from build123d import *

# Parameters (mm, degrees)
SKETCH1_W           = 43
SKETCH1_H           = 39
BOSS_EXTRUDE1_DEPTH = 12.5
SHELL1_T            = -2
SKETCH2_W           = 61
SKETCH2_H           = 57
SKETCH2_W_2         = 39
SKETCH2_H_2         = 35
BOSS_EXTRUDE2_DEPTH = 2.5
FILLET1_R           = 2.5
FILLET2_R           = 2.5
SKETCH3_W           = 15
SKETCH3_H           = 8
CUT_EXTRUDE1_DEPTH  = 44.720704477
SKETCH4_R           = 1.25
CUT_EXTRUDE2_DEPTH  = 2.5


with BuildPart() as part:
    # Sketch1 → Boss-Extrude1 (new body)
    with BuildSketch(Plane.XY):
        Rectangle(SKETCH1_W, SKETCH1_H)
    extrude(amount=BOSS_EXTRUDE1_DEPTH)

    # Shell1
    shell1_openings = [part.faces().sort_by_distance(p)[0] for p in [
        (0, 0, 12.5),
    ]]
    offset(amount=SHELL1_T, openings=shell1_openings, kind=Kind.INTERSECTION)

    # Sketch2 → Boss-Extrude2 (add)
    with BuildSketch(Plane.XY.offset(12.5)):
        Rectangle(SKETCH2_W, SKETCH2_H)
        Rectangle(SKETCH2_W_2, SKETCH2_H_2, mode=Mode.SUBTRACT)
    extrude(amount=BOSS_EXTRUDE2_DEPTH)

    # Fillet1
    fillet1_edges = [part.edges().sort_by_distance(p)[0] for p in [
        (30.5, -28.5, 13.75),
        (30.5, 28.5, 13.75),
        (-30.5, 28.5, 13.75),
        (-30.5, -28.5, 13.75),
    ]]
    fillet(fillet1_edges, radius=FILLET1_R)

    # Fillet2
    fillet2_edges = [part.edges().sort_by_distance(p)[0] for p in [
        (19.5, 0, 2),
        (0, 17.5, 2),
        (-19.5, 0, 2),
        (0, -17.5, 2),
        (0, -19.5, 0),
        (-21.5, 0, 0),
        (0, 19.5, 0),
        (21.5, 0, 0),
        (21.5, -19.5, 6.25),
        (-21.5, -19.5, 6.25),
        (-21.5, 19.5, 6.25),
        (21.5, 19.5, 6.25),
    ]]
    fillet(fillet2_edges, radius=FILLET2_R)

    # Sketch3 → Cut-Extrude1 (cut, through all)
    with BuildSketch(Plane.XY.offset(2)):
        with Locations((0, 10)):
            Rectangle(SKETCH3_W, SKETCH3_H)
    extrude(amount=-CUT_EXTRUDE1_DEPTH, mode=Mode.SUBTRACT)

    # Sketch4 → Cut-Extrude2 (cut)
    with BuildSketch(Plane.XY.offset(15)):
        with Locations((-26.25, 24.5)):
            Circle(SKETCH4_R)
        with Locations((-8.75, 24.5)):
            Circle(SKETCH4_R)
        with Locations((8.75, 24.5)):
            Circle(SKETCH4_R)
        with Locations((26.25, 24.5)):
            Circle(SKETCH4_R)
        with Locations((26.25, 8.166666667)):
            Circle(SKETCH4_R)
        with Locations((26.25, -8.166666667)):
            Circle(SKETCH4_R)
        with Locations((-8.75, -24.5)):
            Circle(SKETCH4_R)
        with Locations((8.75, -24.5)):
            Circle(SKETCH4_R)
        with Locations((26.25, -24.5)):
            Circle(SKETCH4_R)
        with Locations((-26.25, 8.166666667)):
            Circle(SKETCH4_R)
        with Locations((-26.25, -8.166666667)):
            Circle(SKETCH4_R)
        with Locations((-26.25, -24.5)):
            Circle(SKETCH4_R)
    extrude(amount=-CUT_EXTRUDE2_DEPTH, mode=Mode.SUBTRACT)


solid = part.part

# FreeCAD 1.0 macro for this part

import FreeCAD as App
import Part
import Sketcher

V = App.Vector


def edges_at(feature, points):
    """Names of the edges that pass closest to the given points."""
    edges = feature.Shape.Edges
    near = lambda p: min(range(len(edges)), key=lambda i: edges[i].distToShape(Part.Vertex(*p))[0])
    return sorted({f"Edge{near(p) + 1}" for p in points})


def faces_at(feature, points):
    """Names of the faces that lie closest to the given points."""
    faces = feature.Shape.Faces
    near = lambda p: min(range(len(faces)), key=lambda i: faces[i].distToShape(Part.Vertex(*p))[0])
    return sorted({f"Face{near(p) + 1}" for p in points})

doc = App.newDocument("Part")
body = doc.addObject("PartDesign::Body", "Body")

# Sketch on XY plane
sketch1 = body.newObject("Sketcher::SketchObject", "Sketch")
sketch1.AttachmentSupport = (doc.getObject("XY_Plane"), [""])
sketch1.MapMode = "FlatFace"
sketch1.addGeometry([
    Part.LineSegment(V(-22, 20, 0), V(-22, -20, 0)),
    Part.LineSegment(V(-22, -20, 0), V(22, -20, 0)),
    Part.LineSegment(V(22, -20, 0), V(22, 20, 0)),
    Part.LineSegment(V(22, 20, 0), V(-22, 20, 0)),
], False)
sketch1.addConstraint([
    Sketcher.Constraint("Coincident", 0, 2, 1, 1),
    Sketcher.Constraint("Coincident", 1, 2, 2, 1),
    Sketcher.Constraint("Coincident", 2, 2, 3, 1),
    Sketcher.Constraint("Coincident", 3, 2, 0, 1),
    Sketcher.Constraint("Vertical", 0),
    Sketcher.Constraint("Horizontal", 1),
    Sketcher.Constraint("Vertical", 2),
    Sketcher.Constraint("Horizontal", 3),
    Sketcher.Constraint("Symmetric", 0, 2, 2, 2, -1, 1),
    Sketcher.Constraint("DistanceX", 1, 1, 1, 2, 43.0),
    Sketcher.Constraint("DistanceY", 0, 2, 0, 1, 39.0),
])
pad1 = body.newObject("PartDesign::Pad", "Pad")
pad1.Profile = sketch1
pad1.Length = 12.5
doc.recompute()

thickness = body.newObject("PartDesign::Thickness", "Thickness")
thickness.Base = (pad1, faces_at(pad1, [(0, 0, 12.5)]))
thickness.Value = 2
thickness.Reversed = True
thickness.Join = "Intersection"

# Sketch on XY plane
sketch2 = body.newObject("Sketcher::SketchObject", "Sketch001")
sketch2.AttachmentSupport = (doc.getObject("XY_Plane"), [""])
sketch2.MapMode = "FlatFace"
sketch2.AttachmentOffset = App.Placement(V(0, 0, 12.5), App.Rotation())
sketch2.addGeometry([
    Part.LineSegment(V(-30, 28, 0), V(-30, -28, 0)),  # 0
    Part.LineSegment(V(-30, -28, 0), V(30, -28, 0)),  # 1
    Part.LineSegment(V(30, -28, 0), V(30, 28, 0)),  # 2
    Part.LineSegment(V(30, 28, 0), V(-30, 28, 0)),  # 3
    Part.LineSegment(V(20, -18, 0), V(-20, -18, 0)),  # 4
    Part.LineSegment(V(-20, -18, 0), V(-20, 18, 0)),  # 5
    Part.LineSegment(V(-20, 18, 0), V(20, 18, 0)),  # 6
    Part.LineSegment(V(20, 18, 0), V(20, -18, 0)),  # 7
], False)
sketch2.addConstraint([
    Sketcher.Constraint("Coincident", 0, 2, 1, 1),
    Sketcher.Constraint("Coincident", 1, 2, 2, 1),
    Sketcher.Constraint("Coincident", 2, 2, 3, 1),
    Sketcher.Constraint("Coincident", 3, 2, 0, 1),
    Sketcher.Constraint("Coincident", 4, 2, 5, 1),
    Sketcher.Constraint("Coincident", 5, 2, 6, 1),
    Sketcher.Constraint("Coincident", 6, 2, 7, 1),
    Sketcher.Constraint("Coincident", 7, 2, 4, 1),
    Sketcher.Constraint("Vertical", 0),
    Sketcher.Constraint("Horizontal", 1),
    Sketcher.Constraint("Vertical", 2),
    Sketcher.Constraint("Horizontal", 3),
    Sketcher.Constraint("Horizontal", 4),
    Sketcher.Constraint("Vertical", 5),
    Sketcher.Constraint("Horizontal", 6),
    Sketcher.Constraint("Vertical", 7),
    Sketcher.Constraint("Symmetric", 0, 2, 2, 2, -1, 1),
    Sketcher.Constraint("Symmetric", 4, 2, 6, 2, -1, 1),
    Sketcher.Constraint("DistanceX", 1, 1, 1, 2, 61.0),
    Sketcher.Constraint("DistanceX", 4, 2, 4, 1, 39.0),
    Sketcher.Constraint("DistanceY", 0, 2, 0, 1, 57.0),
    Sketcher.Constraint("DistanceY", 5, 1, 5, 2, 35.0),
])
pad2 = body.newObject("PartDesign::Pad", "Pad001")
pad2.Profile = sketch2
pad2.Length = 2.5
doc.recompute()

fillet = body.newObject("PartDesign::Fillet", "Fillet")
fillet.Base = (pad2, edges_at(pad2, [
    (30.5, -28.5, 13.75),
    (30.5, 28.5, 13.75),
    (-30.5, 28.5, 13.75),
    (-30.5, -28.5, 13.75),
]))
fillet.Radius = 2.5
doc.recompute()

fillet2 = body.newObject("PartDesign::Fillet", "Fillet001")
fillet2.Base = (fillet, edges_at(fillet, [
    (19.5, 0, 2),
    (0, 17.5, 2),
    (-19.5, 0, 2),
    (0, -17.5, 2),
    (0, -19.5, 0),
    (-21.5, 0, 0),
    (0, 19.5, 0),
    (21.5, 0, 0),
    (21.5, -19.5, 6.25),
    (-21.5, -19.5, 6.25),
    (-21.5, 19.5, 6.25),
    (21.5, 19.5, 6.25),
]))
fillet2.Radius = 2.5

# Sketch on XY plane
sketch3 = body.newObject("Sketcher::SketchObject", "Sketch002")
sketch3.AttachmentSupport = (doc.getObject("XY_Plane"), [""])
sketch3.MapMode = "FlatFace"
sketch3.AttachmentOffset = App.Placement(V(0, 0, 2), App.Rotation())
sketch3.addGeometry([
    Part.LineSegment(V(-8, 14, 0), V(-8, 6, 0)),
    Part.LineSegment(V(-8, 6, 0), V(8, 6, 0)),
    Part.LineSegment(V(8, 6, 0), V(8, 14, 0)),
    Part.LineSegment(V(8, 14, 0), V(-8, 14, 0)),
], False)
sketch3.addConstraint([
    Sketcher.Constraint("Coincident", 0, 2, 1, 1),
    Sketcher.Constraint("Coincident", 1, 2, 2, 1),
    Sketcher.Constraint("Coincident", 2, 2, 3, 1),
    Sketcher.Constraint("Coincident", 3, 2, 0, 1),
    Sketcher.Constraint("Vertical", 0),
    Sketcher.Constraint("Horizontal", 1),
    Sketcher.Constraint("Vertical", 2),
    Sketcher.Constraint("Horizontal", 3),
    Sketcher.Constraint("DistanceX", 1, 1, 1, 2, 15.0),
    Sketcher.Constraint("DistanceY", 0, 2, 0, 1, 8.0),
    Sketcher.Constraint("DistanceY", -1, 1, 0, 2, 6.0),
    Sketcher.Constraint("DistanceX", 0, 2, -1, 1, 7.5),
])
pocket1 = body.newObject("PartDesign::Pocket", "Pocket")
pocket1.Profile = sketch3
pocket1.Type = "ThroughAll"

# Sketch on XY plane
sketch4 = body.newObject("Sketcher::SketchObject", "Sketch003")
sketch4.AttachmentSupport = (doc.getObject("XY_Plane"), [""])
sketch4.MapMode = "FlatFace"
sketch4.AttachmentOffset = App.Placement(V(0, 0, 15), App.Rotation())
sketch4.addGeometry([
    Part.Circle(V(-26.2, 24.5, 0), V(0, 0, 1), 1.2),  # 0
    Part.Circle(V(-8.8, 24.5, 0), V(0, 0, 1), 1.2),  # 1
    Part.Circle(V(8.8, 24.5, 0), V(0, 0, 1), 1.2),  # 2
    Part.Circle(V(26.2, 24.5, 0), V(0, 0, 1), 1.2),  # 3
    Part.Circle(V(26.2, 8.2, 0), V(0, 0, 1), 1.2),  # 4
    Part.Circle(V(26.2, -8.2, 0), V(0, 0, 1), 1.2),  # 5
    Part.Circle(V(-8.8, -24.5, 0), V(0, 0, 1), 1.2),  # 6
    Part.Circle(V(8.8, -24.5, 0), V(0, 0, 1), 1.2),  # 7
    Part.Circle(V(26.2, -24.5, 0), V(0, 0, 1), 1.2),  # 8
    Part.Circle(V(-26.2, 8.2, 0), V(0, 0, 1), 1.2),  # 9
    Part.Circle(V(-26.2, -8.2, 0), V(0, 0, 1), 1.2),  # 10
    Part.Circle(V(-26.2, -24.5, 0), V(0, 0, 1), 1.2),  # 11
], False)
sketch4.addConstraint([
    Sketcher.Constraint("Equal", 0, 1),
    Sketcher.Constraint("Equal", 1, 2),
    Sketcher.Constraint("Equal", 2, 3),
    Sketcher.Constraint("Equal", 3, 4),
    Sketcher.Constraint("Equal", 4, 5),
    Sketcher.Constraint("Equal", 5, 6),
    Sketcher.Constraint("Equal", 6, 7),
    Sketcher.Constraint("Equal", 7, 8),
    Sketcher.Constraint("Equal", 8, 9),
    Sketcher.Constraint("Equal", 9, 10),
    Sketcher.Constraint("Equal", 10, 11),
    Sketcher.Constraint("Symmetric", 2, 3, 6, 3, -1, 1),
    Sketcher.Constraint("Symmetric", 1, 3, 7, 3, -1, 1),
    Sketcher.Constraint("Symmetric", 0, 3, 8, 3, -1, 1),
    Sketcher.Constraint("Symmetric", 5, 3, 9, 3, -1, 1),
    Sketcher.Constraint("Symmetric", 4, 3, 10, 3, -1, 1),
    Sketcher.Constraint("Symmetric", 3, 3, 11, 3, -1, 1),
    Sketcher.Constraint("Symmetric", 1, 3, 2, 3, -2),
    Sketcher.Constraint("Symmetric", 0, 3, 3, 3, -2),
    Sketcher.Constraint("Symmetric", 4, 3, 9, 3, -2),
    Sketcher.Constraint("Horizontal", 0, 3, 1, 3),
    Sketcher.Constraint("Vertical", 3, 3, 4, 3),
    Sketcher.Constraint("Diameter", 0, 2.5),
    Sketcher.Constraint("DistanceX", 0, 3, 2, 3, 35.0),
    Sketcher.Constraint("DistanceY", 6, 3, 1, 3, 49.0),
    Sketcher.Constraint("DistanceX", 0, 3, 1, 3, 17.5),
    Sketcher.Constraint("DistanceY", -1, 1, 4, 3, 8.166667),
])
pocket2 = body.newObject("PartDesign::Pocket", "Pocket001")
pocket2.Profile = sketch4
pocket2.Length = 2.5

doc.recompute()
